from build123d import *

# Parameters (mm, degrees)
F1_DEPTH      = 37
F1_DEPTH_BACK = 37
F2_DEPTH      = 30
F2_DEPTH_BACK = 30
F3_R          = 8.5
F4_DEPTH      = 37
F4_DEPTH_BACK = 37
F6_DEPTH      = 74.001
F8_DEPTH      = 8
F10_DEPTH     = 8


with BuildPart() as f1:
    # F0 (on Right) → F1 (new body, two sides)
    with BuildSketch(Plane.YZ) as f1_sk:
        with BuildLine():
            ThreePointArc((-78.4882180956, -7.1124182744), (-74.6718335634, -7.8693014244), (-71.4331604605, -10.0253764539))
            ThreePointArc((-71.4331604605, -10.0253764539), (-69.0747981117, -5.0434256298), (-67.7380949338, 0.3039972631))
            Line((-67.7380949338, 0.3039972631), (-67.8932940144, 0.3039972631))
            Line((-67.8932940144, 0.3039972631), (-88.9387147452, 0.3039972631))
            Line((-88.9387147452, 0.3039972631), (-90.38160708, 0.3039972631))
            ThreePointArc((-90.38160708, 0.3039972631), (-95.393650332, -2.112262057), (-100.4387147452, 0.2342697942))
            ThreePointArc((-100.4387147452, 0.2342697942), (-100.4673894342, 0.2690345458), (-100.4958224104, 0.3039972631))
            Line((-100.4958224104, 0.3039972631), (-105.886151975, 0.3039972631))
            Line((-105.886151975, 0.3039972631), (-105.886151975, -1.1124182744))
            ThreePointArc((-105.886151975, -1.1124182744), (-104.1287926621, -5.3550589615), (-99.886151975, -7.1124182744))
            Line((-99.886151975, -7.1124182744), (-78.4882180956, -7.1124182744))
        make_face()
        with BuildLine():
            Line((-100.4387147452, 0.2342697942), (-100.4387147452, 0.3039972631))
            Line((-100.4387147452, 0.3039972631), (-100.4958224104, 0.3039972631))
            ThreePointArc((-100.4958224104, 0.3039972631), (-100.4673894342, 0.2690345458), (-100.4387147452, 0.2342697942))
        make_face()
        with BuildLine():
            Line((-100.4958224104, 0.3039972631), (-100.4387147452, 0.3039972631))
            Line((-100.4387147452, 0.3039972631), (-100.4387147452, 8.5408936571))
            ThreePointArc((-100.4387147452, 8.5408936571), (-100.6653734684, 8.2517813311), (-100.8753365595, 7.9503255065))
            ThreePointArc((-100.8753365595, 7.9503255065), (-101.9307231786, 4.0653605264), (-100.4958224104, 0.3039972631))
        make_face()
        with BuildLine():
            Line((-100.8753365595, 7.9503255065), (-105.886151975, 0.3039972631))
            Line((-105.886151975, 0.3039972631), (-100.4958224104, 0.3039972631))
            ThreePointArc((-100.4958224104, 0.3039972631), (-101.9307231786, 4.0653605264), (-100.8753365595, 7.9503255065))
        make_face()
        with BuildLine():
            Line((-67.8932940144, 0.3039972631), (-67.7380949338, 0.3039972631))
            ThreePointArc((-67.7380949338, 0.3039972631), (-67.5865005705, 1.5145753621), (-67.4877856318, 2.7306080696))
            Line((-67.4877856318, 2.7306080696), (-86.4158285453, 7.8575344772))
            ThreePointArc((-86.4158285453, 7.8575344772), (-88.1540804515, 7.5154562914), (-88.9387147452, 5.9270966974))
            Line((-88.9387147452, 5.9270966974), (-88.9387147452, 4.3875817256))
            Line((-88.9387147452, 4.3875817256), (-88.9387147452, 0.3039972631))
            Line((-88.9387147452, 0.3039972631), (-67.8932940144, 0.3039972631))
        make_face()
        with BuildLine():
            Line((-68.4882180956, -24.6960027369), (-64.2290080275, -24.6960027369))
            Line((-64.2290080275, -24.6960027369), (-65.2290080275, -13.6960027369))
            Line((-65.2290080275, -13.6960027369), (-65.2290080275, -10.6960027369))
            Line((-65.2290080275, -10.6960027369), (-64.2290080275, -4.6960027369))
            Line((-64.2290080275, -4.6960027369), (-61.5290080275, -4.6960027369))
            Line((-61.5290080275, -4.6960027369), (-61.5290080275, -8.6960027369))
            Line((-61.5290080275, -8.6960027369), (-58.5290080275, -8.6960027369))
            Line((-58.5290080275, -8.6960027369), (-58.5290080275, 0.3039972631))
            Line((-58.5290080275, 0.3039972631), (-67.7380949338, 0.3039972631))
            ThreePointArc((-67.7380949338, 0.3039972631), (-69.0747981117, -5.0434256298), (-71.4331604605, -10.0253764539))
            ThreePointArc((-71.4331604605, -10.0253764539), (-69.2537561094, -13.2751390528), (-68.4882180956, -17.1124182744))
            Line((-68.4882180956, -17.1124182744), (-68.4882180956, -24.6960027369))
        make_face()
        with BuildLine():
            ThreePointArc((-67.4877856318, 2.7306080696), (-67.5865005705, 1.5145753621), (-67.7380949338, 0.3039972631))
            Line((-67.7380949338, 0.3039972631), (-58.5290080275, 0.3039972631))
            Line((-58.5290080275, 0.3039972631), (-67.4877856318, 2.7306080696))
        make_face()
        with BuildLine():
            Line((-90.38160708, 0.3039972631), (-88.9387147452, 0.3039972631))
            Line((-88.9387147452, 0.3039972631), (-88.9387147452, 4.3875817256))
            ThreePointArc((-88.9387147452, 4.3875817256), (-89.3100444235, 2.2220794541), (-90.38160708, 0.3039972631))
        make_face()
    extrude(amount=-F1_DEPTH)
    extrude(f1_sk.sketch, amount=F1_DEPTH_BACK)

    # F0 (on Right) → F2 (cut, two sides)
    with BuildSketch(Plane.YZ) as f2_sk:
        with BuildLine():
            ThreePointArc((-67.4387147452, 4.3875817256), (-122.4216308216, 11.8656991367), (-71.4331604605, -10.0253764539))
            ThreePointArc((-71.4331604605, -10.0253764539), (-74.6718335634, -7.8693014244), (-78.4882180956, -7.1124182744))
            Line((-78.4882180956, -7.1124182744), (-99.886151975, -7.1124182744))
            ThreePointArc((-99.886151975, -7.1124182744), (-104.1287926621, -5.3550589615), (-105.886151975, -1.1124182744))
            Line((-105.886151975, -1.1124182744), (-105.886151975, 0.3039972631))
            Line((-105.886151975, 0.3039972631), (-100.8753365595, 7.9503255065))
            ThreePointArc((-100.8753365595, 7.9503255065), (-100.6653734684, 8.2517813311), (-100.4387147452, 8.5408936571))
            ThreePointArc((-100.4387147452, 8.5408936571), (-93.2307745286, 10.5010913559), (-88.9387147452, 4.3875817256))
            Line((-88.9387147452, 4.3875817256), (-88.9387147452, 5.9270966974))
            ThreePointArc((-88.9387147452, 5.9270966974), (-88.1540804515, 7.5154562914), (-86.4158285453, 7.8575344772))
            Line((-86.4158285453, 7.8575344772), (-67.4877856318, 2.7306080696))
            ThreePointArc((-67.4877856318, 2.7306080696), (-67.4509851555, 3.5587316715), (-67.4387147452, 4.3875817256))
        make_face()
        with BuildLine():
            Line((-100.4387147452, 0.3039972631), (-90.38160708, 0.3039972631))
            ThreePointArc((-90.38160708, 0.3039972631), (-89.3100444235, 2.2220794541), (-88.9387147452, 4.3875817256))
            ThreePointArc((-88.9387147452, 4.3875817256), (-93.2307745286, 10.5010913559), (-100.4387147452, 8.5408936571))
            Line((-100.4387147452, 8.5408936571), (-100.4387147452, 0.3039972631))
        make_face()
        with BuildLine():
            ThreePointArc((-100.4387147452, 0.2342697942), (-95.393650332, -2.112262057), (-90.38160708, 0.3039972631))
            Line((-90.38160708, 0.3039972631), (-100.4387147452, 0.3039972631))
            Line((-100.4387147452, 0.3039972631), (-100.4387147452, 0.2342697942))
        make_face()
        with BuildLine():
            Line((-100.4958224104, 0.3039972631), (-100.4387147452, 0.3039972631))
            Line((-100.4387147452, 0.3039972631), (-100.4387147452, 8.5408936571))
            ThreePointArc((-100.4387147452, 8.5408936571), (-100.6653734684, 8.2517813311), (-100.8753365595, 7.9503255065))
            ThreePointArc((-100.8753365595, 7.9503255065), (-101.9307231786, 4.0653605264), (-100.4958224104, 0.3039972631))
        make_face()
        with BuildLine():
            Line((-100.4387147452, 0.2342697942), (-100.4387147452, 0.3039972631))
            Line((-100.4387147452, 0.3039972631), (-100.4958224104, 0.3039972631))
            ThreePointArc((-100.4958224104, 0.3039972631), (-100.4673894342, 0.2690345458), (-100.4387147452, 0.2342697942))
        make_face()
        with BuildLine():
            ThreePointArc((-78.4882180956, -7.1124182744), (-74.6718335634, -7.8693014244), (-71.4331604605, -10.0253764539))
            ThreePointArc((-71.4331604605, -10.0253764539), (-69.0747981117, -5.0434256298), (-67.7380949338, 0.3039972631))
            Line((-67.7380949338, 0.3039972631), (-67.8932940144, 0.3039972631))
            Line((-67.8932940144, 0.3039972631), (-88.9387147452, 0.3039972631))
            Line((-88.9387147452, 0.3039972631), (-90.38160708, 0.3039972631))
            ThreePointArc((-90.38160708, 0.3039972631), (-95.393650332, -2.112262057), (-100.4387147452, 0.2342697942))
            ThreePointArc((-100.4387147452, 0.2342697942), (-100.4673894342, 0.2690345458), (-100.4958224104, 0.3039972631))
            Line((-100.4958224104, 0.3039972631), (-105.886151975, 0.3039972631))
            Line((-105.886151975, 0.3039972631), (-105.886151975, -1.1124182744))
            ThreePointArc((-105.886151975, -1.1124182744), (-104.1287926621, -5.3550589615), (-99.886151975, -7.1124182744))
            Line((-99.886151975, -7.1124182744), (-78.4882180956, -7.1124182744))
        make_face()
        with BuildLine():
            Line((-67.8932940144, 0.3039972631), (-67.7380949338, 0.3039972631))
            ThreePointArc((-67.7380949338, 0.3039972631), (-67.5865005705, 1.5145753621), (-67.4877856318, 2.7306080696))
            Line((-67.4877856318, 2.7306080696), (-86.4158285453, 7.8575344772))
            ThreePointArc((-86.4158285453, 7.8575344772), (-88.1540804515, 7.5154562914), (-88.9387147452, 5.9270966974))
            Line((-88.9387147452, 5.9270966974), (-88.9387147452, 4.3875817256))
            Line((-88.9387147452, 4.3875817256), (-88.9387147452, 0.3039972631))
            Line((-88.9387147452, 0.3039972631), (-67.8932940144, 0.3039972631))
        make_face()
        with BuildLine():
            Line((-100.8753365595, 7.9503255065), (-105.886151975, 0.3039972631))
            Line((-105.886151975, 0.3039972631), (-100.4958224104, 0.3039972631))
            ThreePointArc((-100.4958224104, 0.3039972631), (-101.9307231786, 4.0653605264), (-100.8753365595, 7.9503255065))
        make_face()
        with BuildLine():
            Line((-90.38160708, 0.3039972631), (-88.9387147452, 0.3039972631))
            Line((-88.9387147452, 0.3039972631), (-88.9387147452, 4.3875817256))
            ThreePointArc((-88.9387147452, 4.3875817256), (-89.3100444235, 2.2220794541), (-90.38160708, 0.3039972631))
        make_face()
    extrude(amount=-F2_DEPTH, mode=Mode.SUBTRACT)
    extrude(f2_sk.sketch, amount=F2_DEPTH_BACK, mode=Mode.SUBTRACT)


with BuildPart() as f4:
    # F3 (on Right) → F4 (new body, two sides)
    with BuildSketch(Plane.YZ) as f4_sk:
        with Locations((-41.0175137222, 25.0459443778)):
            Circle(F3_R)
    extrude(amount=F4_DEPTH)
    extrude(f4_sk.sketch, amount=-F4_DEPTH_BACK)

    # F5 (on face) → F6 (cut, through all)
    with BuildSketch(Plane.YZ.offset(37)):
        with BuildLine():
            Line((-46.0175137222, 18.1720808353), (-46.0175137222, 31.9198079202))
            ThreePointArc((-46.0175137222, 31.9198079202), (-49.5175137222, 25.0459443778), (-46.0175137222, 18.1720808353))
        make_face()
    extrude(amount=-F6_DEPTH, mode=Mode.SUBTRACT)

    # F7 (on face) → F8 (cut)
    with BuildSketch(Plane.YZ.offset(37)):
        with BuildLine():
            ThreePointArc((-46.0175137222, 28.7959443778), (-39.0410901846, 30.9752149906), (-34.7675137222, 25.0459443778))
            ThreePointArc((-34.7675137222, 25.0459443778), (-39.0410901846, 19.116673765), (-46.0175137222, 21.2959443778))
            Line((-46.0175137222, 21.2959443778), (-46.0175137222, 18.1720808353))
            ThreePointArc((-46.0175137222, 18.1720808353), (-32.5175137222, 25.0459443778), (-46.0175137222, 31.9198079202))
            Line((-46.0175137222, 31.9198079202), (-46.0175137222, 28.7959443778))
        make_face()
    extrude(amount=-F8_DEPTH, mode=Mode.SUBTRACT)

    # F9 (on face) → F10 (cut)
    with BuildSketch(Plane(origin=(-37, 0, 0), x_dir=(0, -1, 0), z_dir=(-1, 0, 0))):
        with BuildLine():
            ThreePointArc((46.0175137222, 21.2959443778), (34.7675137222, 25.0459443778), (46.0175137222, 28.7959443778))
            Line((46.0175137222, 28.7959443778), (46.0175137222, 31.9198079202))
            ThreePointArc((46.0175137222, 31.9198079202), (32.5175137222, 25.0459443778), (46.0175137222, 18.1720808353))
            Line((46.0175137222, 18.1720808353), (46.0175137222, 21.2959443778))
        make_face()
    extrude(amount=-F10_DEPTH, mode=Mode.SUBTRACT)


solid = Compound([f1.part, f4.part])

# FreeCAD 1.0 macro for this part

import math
import FreeCAD as App
import Part
import Sketcher

V = App.Vector
Q = App.Units.Quantity

doc = App.newDocument("Part")
body = doc.addObject("PartDesign::Body", "Body")

sketch1 = body.newObject("Sketcher::SketchObject", "Sketch")
sketch1.AttachmentSupport = (doc.getObject("YZ_Plane"), [""])
sketch1.MapMode = "FlatFace"
sketch1.addGeometry([
    Part.ArcOfCircle(Part.Circle(V(-78.5, -17.1, 0), V(0, 0, 1), 10), math.radians(45), math.radians(90)),
    Part.ArcOfCircle(Part.Circle(V(-78.5, -17.1, 0), V(0, 0, 1), 10), math.radians(0), math.radians(45)),
    Part.LineSegment(V(-68.5, -17.1, 0), V(-68.5, -24.7, 0)),
    Part.LineSegment(V(-68.5, -24.7, 0), V(-64.2, -24.7, 0)),
    Part.LineSegment(V(-64.2, -24.7, 0), V(-65.2, -13.7, 0)),
    Part.LineSegment(V(-65.2, -13.7, 0), V(-65.2, -10.7, 0)),
    Part.LineSegment(V(-65.2, -10.7, 0), V(-64.2, -4.7, 0)),
    Part.LineSegment(V(-64.2, -4.7, 0), V(-61.5, -4.7, 0)),
    Part.LineSegment(V(-61.5, -4.7, 0), V(-61.5, -8.7, 0)),
    Part.LineSegment(V(-61.5, -8.7, 0), V(-58.5, -8.7, 0)),
    Part.LineSegment(V(-58.5, -8.7, 0), V(-58.5, 0.3, 0)),
    Part.LineSegment(V(-58.5, 0.3, 0), V(-67.5, 2.7, 0)),
    Part.LineSegment(V(-67.5, 2.7, 0), V(-86.4, 7.9, 0)),
    Part.ArcOfCircle(Part.Circle(V(-86.9, 5.9, 0), V(0, 0, 1), 2), math.radians(75), math.radians(180)),
    Part.LineSegment(V(-88.9, 5.9, 0), V(-88.9, 4.4, 0)),
    Part.ArcOfCircle(Part.Circle(V(-95.4, 4.4, 0), V(0, 0, 1), 6.5), math.radians(-39), math.radians(0)),
    Part.ArcOfCircle(Part.Circle(V(-95.4, 4.4, 0), V(0, 0, 1), 6.5), math.radians(-140), math.radians(-39)),
    Part.LineSegment(V(-100.4, 0.2, 0), V(-100.4, 8.5, 0)),
    Part.ArcOfCircle(Part.Circle(V(-95.4, 4.4, 0), V(0, 0, 1), 6.5), math.radians(140.28), math.radians(146.76)),
    Part.LineSegment(V(-100.9, 8, 0), V(-105.9, 0.3, 0)),
    Part.LineSegment(V(-105.9, 0.3, 0), V(-105.9, -1.1, 0)),
    Part.ArcOfCircle(Part.Circle(V(-99.9, -1.1, 0), V(0, 0, 1), 6), math.radians(180), math.radians(270)),
    Part.LineSegment(V(-99.9, -7.1, 0), V(-78.5, -7.1, 0)),
], False)
sketch1.addConstraint([
    Sketcher.Constraint("Tangent", 0, 1, 1, 2),
    Sketcher.Constraint("Tangent", 1, 1, 2, 1),
    Sketcher.Constraint("Coincident", 2, 2, 3, 1),
    Sketcher.Constraint("Coincident", 3, 2, 4, 1),
    Sketcher.Constraint("Coincident", 4, 2, 5, 1),
    Sketcher.Constraint("Coincident", 5, 2, 6, 1),
    Sketcher.Constraint("Coincident", 6, 2, 7, 1),
    Sketcher.Constraint("Coincident", 7, 2, 8, 1),
    Sketcher.Constraint("Coincident", 8, 2, 9, 1),
    Sketcher.Constraint("Coincident", 9, 2, 10, 1),
    Sketcher.Constraint("Coincident", 10, 2, 11, 1),
    Sketcher.Constraint("Coincident", 11, 2, 12, 1),
    Sketcher.Constraint("Tangent", 12, 2, 13, 1),
    Sketcher.Constraint("Tangent", 13, 2, 14, 1),
    Sketcher.Constraint("Tangent", 14, 2, 15, 2),
    Sketcher.Constraint("Tangent", 15, 1, 16, 2),
    Sketcher.Constraint("Coincident", 16, 1, 17, 1),
    Sketcher.Constraint("Coincident", 17, 2, 18, 1),
    Sketcher.Constraint("Tangent", 18, 2, 19, 1),
    Sketcher.Constraint("Coincident", 19, 2, 20, 1),
    Sketcher.Constraint("Tangent", 20, 2, 21, 1),
    Sketcher.Constraint("Tangent", 21, 2, 22, 1),
    Sketcher.Constraint("Tangent", 22, 2, 0, 2),
    Sketcher.Constraint("Vertical", 2),
    Sketcher.Constraint("Horizontal", 3),
    Sketcher.Constraint("Vertical", 5),
    Sketcher.Constraint("Horizontal", 7),
    Sketcher.Constraint("Vertical", 8),
    Sketcher.Constraint("Horizontal", 9),
    Sketcher.Constraint("Vertical", 10),
    Sketcher.Constraint("Vertical", 14),
    Sketcher.Constraint("Vertical", 17),
    Sketcher.Constraint("Vertical", 20),
    Sketcher.Constraint("Horizontal", 22),
    Sketcher.Constraint("Coincident", 18, 3, 15, 3),
    Sketcher.Constraint("Equal", 0, 1),
    Sketcher.Constraint("Equal", 15, 16),
    Sketcher.Constraint("Equal", 16, 18),
    Sketcher.Constraint("Parallel", 11, 12),
    Sketcher.Constraint("Horizontal", 10, 2, 15, 1),
    Sketcher.Constraint("Horizontal", 15, 1, 19, 2),
    Sketcher.Constraint("Vertical", 3, 2, 6, 2),
    Sketcher.Constraint("Equal", 9, 5),
    Sketcher.Constraint("Radius", 0, Q("10 mm")),
    Sketcher.Constraint("Radius", 13, Q("2 mm")),
    Sketcher.Constraint("Radius", 21, Q("6 mm")),
    Sketcher.Constraint("Radius", 15, Q("6.5 mm")),
    Sketcher.Constraint("DistanceX", 9, 1, 9, 2, Q("3 mm")),
    Sketcher.Constraint("DistanceY", 8, 2, 8, 1, Q("4 mm")),
    Sketcher.Constraint("DistanceY", 10, 1, 10, 2, Q("9 mm")),
    Sketcher.Constraint("DistanceX", 7, 1, 7, 2, Q("2.7 mm")),
    Sketcher.Constraint("DistanceX", 4, 2, 3, 2, Q("1 mm")),
    Sketcher.Constraint("DistanceY", 3, 2, 4, 2, Q("11 mm")),
    Sketcher.Constraint("DistanceY", 5, 2, 6, 2, Q("6 mm")),
    Sketcher.Constraint("DistanceX", 16, 1, 15, 3, Q("5 mm")),
    Sketcher.Constraint("DistanceY", 0, 3, 15, 3, Q("21.5 mm")),
    Sketcher.Constraint("DistanceX", 3, 1, 3, 2, Q("4.25921 mm")),
    Sketcher.Constraint("DistanceY", 2, 2, 13, 3, Q("30.623099 mm")),
    Sketcher.Constraint("DistanceX", 22, 1, 22, 2, Q("21.397934 mm")),
    Sketcher.Constraint("DistanceY", 2, 2, 2, 1, Q("7.583584 mm")),
    Sketcher.Constraint("DistanceX", 0, 3, -1, 1, Q("78.488218 mm")),
    Sketcher.Constraint("DistanceY", 0, 3, -1, 1, Q("17.112418 mm")),
    Sketcher.Constraint("DistanceX", 0, 1, -1, 1, Q("71.43316 mm")),
    Sketcher.Constraint("DistanceY", -1, 1, 11, 2, Q("2.730608 mm")),
    Sketcher.Constraint("DistanceX", 12, 2, -1, 1, Q("86.415829 mm")),
])
pad1 = body.newObject("PartDesign::Pad", "Pad")
pad1.Profile = sketch1
pad1.Type = "TwoLengths"
pad1.Length = 37
pad1.Length2 = 37
pad1.Reversed = True

sketch2 = body.newObject("Sketcher::SketchObject", "Sketch001")
sketch2.AttachmentSupport = (doc.getObject("YZ_Plane"), [""])
sketch2.MapMode = "FlatFace"
sketch2.addGeometry([
    Part.ArcOfCircle(Part.Circle(V(-95.4, 4.4, 0), V(0, 0, 1), 28), math.radians(0), math.radians(329)),
    Part.ArcOfCircle(Part.Circle(V(-95.4, 4.4, 0), V(0, 0, 1), 28), math.radians(-31), math.radians(-8)),
    Part.ArcOfCircle(Part.Circle(V(-95.4, 4.4, 0), V(0, 0, 1), 28), math.radians(-8.39), math.radians(-3.39)),
    Part.ArcOfCircle(Part.Circle(V(-95.4, 4.4, 0), V(0, 0, 1), 28), math.radians(-3.39), math.radians(0)),
], False)
sketch2.addConstraint([
    Sketcher.Constraint("Tangent", 0, 2, 1, 1),
    Sketcher.Constraint("Tangent", 1, 2, 2, 1),
    Sketcher.Constraint("Tangent", 2, 2, 3, 1),
    Sketcher.Constraint("Coincident", 3, 2, 0, 1),
    Sketcher.Constraint("Coincident", 2, 3, 0, 3),
    Sketcher.Constraint("Horizontal", 2, 3, 3, 2),
    Sketcher.Constraint("Radius", 0, Q("28 mm")),
    Sketcher.Constraint("DistanceY", -1, 1, 0, 3, Q("4.387582 mm")),
    Sketcher.Constraint("DistanceX", 0, 2, -1, 1, Q("71.43316 mm")),
    Sketcher.Constraint("DistanceY", -1, 1, 2, 2, Q("2.730608 mm")),
    Sketcher.Constraint("DistanceY", 0, 2, 0, 3, Q("14.412958 mm")),
    Sketcher.Constraint("DistanceX", 0, 3, 1, 2, Q("27.70062 mm")),
])
pocket1 = body.newObject("PartDesign::Pocket", "Pocket")
pocket1.Profile = sketch2
pocket1.Type = "TwoLengths"
pocket1.Length = 30
pocket1.Length2 = 30
body2 = doc.addObject("PartDesign::Body", "Body001")

sketch3 = body2.newObject("Sketcher::SketchObject", "Sketch002")
sketch3.AttachmentSupport = (doc.getObject("YZ_Plane001"), [""])
sketch3.MapMode = "FlatFace"
sketch3.addGeometry(Part.Circle(V(-41, 25, 0), V(0, 0, 1), 8), False)
sketch3.addConstraint([
    Sketcher.Constraint("Diameter", 0, Q("17 mm")),
    Sketcher.Constraint("DistanceX", 0, 3, -1, 1, Q("41.017514 mm")),
    Sketcher.Constraint("DistanceY", -1, 1, 0, 3, Q("25.045944 mm")),
])
pad2 = body2.newObject("PartDesign::Pad", "Pad001")
pad2.Profile = sketch3
pad2.Type = "TwoLengths"
pad2.Length = 37
pad2.Length2 = 37

sketch4 = body2.newObject("Sketcher::SketchObject", "Sketch003")
sketch4.AttachmentSupport = (doc.getObject("YZ_Plane001"), [""])
sketch4.MapMode = "FlatFace"
sketch4.AttachmentOffset = App.Placement(V(0, 0, 37), App.Rotation())
sketch4.addGeometry([
    Part.LineSegment(V(-46, 18, 0), V(-46, 32, 0)),
    Part.ArcOfCircle(Part.Circle(V(-41, 25, 0), V(0, 0, 1), 8), math.radians(126), math.radians(234)),
], False)
sketch4.addConstraint([
    Sketcher.Constraint("Coincident", 0, 1, 1, 2),
    Sketcher.Constraint("Coincident", 1, 1, 0, 2),
    Sketcher.Constraint("Vertical", 0),
    Sketcher.Constraint("Radius", 1, Q("8.5 mm")),
    Sketcher.Constraint("DistanceX", 0, 1, 1, 3, Q("5 mm")),
    Sketcher.Constraint("DistanceY", -1, 1, 0, 1, Q("18.172081 mm")),
    Sketcher.Constraint("DistanceX", 1, 3, -1, 1, Q("41.017514 mm")),
])
pocket2 = body2.newObject("PartDesign::Pocket", "Pocket001")
pocket2.Profile = sketch4
pocket2.Type = "ThroughAll"

sketch5 = body2.newObject("Sketcher::SketchObject", "Sketch004")
sketch5.AttachmentSupport = (doc.getObject("YZ_Plane001"), [""])
sketch5.MapMode = "FlatFace"
sketch5.AttachmentOffset = App.Placement(V(0, 0, 37), App.Rotation())
sketch5.addGeometry([
    Part.ArcOfCircle(Part.Circle(V(-41, 25, 0), V(0, 0, 1), 6.2), math.radians(0), math.radians(143)),
    Part.ArcOfCircle(Part.Circle(V(-41, 25, 0), V(0, 0, 1), 6.2), math.radians(-143), math.radians(0)),
    Part.LineSegment(V(-46, 21.3, 0), V(-46, 18.2, 0)),
    Part.ArcOfCircle(Part.Circle(V(-41, 25, 0), V(0, 0, 1), 8.5), math.radians(-126), math.radians(126)),
    Part.LineSegment(V(-46, 31.9, 0), V(-46, 28.8, 0)),
], False)
sketch5.addConstraint([
    Sketcher.Constraint("Tangent", 0, 1, 1, 2),
    Sketcher.Constraint("Coincident", 1, 1, 2, 1),
    Sketcher.Constraint("Coincident", 2, 2, 3, 1),
    Sketcher.Constraint("Coincident", 3, 2, 4, 1),
    Sketcher.Constraint("Coincident", 4, 2, 0, 2),
    Sketcher.Constraint("Vertical", 2),
    Sketcher.Constraint("Vertical", 4),
    Sketcher.Constraint("Coincident", 3, 3, 0, 3),
    Sketcher.Constraint("Equal", 0, 1),
    Sketcher.Constraint("Horizontal", 3, 3, 0, 1),
    Sketcher.Constraint("Vertical", 2, 2, 3, 2),
    Sketcher.Constraint("Radius", 3, Q("8.5 mm")),
    Sketcher.Constraint("Radius", 0, Q("6.25 mm")),
    Sketcher.Constraint("DistanceX", 1, 1, 0, 3, Q("5 mm")),
    Sketcher.Constraint("DistanceY", -1, 1, 2, 2, Q("18.172081 mm")),
    Sketcher.Constraint("DistanceX", 0, 3, -1, 1, Q("41.017514 mm")),
])
pocket3 = body2.newObject("PartDesign::Pocket", "Pocket002")
pocket3.Profile = sketch5
pocket3.Length = 8

sketch6 = body2.newObject("Sketcher::SketchObject", "Sketch005")
sketch6.AttachmentSupport = (doc.getObject("YZ_Plane001"), [""])
sketch6.MapMode = "FlatFace"
sketch6.AttachmentOffset = App.Placement(V(0, 0, -37), App.Rotation())
sketch6.addGeometry([
    Part.ArcOfCircle(Part.Circle(V(-41, 25, 0), V(0, 0, 1), 6.2), math.radians(-143), math.radians(143)),
    Part.LineSegment(V(-46, 28.8, 0), V(-46, 31.9, 0)),
    Part.ArcOfCircle(Part.Circle(V(-41, 25, 0), V(0, 0, 1), 8.5), math.radians(-126), math.radians(126)),
    Part.LineSegment(V(-46, 18.2, 0), V(-46, 21.3, 0)),
], False)
sketch6.addConstraint([
    Sketcher.Constraint("Coincident", 0, 2, 1, 1),
    Sketcher.Constraint("Coincident", 1, 2, 2, 2),
    Sketcher.Constraint("Coincident", 2, 1, 3, 1),
    Sketcher.Constraint("Coincident", 3, 2, 0, 1),
    Sketcher.Constraint("Vertical", 1),
    Sketcher.Constraint("Vertical", 3),
    Sketcher.Constraint("Coincident", 2, 3, 0, 3),
    Sketcher.Constraint("Vertical", 1, 2, 2, 1),
    Sketcher.Constraint("Radius", 2, Q("8.5 mm")),
    Sketcher.Constraint("Radius", 0, Q("6.25 mm")),
    Sketcher.Constraint("DistanceX", 0, 2, 0, 3, Q("5 mm")),
    Sketcher.Constraint("DistanceY", -1, 1, 2, 1, Q("18.172081 mm")),
    Sketcher.Constraint("DistanceX", 0, 3, -1, 1, Q("41.017514 mm")),
])
pocket4 = body2.newObject("PartDesign::Pocket", "Pocket003")
pocket4.Profile = sketch6
pocket4.Length = 8
pocket4.Reversed = True

doc.recompute()
